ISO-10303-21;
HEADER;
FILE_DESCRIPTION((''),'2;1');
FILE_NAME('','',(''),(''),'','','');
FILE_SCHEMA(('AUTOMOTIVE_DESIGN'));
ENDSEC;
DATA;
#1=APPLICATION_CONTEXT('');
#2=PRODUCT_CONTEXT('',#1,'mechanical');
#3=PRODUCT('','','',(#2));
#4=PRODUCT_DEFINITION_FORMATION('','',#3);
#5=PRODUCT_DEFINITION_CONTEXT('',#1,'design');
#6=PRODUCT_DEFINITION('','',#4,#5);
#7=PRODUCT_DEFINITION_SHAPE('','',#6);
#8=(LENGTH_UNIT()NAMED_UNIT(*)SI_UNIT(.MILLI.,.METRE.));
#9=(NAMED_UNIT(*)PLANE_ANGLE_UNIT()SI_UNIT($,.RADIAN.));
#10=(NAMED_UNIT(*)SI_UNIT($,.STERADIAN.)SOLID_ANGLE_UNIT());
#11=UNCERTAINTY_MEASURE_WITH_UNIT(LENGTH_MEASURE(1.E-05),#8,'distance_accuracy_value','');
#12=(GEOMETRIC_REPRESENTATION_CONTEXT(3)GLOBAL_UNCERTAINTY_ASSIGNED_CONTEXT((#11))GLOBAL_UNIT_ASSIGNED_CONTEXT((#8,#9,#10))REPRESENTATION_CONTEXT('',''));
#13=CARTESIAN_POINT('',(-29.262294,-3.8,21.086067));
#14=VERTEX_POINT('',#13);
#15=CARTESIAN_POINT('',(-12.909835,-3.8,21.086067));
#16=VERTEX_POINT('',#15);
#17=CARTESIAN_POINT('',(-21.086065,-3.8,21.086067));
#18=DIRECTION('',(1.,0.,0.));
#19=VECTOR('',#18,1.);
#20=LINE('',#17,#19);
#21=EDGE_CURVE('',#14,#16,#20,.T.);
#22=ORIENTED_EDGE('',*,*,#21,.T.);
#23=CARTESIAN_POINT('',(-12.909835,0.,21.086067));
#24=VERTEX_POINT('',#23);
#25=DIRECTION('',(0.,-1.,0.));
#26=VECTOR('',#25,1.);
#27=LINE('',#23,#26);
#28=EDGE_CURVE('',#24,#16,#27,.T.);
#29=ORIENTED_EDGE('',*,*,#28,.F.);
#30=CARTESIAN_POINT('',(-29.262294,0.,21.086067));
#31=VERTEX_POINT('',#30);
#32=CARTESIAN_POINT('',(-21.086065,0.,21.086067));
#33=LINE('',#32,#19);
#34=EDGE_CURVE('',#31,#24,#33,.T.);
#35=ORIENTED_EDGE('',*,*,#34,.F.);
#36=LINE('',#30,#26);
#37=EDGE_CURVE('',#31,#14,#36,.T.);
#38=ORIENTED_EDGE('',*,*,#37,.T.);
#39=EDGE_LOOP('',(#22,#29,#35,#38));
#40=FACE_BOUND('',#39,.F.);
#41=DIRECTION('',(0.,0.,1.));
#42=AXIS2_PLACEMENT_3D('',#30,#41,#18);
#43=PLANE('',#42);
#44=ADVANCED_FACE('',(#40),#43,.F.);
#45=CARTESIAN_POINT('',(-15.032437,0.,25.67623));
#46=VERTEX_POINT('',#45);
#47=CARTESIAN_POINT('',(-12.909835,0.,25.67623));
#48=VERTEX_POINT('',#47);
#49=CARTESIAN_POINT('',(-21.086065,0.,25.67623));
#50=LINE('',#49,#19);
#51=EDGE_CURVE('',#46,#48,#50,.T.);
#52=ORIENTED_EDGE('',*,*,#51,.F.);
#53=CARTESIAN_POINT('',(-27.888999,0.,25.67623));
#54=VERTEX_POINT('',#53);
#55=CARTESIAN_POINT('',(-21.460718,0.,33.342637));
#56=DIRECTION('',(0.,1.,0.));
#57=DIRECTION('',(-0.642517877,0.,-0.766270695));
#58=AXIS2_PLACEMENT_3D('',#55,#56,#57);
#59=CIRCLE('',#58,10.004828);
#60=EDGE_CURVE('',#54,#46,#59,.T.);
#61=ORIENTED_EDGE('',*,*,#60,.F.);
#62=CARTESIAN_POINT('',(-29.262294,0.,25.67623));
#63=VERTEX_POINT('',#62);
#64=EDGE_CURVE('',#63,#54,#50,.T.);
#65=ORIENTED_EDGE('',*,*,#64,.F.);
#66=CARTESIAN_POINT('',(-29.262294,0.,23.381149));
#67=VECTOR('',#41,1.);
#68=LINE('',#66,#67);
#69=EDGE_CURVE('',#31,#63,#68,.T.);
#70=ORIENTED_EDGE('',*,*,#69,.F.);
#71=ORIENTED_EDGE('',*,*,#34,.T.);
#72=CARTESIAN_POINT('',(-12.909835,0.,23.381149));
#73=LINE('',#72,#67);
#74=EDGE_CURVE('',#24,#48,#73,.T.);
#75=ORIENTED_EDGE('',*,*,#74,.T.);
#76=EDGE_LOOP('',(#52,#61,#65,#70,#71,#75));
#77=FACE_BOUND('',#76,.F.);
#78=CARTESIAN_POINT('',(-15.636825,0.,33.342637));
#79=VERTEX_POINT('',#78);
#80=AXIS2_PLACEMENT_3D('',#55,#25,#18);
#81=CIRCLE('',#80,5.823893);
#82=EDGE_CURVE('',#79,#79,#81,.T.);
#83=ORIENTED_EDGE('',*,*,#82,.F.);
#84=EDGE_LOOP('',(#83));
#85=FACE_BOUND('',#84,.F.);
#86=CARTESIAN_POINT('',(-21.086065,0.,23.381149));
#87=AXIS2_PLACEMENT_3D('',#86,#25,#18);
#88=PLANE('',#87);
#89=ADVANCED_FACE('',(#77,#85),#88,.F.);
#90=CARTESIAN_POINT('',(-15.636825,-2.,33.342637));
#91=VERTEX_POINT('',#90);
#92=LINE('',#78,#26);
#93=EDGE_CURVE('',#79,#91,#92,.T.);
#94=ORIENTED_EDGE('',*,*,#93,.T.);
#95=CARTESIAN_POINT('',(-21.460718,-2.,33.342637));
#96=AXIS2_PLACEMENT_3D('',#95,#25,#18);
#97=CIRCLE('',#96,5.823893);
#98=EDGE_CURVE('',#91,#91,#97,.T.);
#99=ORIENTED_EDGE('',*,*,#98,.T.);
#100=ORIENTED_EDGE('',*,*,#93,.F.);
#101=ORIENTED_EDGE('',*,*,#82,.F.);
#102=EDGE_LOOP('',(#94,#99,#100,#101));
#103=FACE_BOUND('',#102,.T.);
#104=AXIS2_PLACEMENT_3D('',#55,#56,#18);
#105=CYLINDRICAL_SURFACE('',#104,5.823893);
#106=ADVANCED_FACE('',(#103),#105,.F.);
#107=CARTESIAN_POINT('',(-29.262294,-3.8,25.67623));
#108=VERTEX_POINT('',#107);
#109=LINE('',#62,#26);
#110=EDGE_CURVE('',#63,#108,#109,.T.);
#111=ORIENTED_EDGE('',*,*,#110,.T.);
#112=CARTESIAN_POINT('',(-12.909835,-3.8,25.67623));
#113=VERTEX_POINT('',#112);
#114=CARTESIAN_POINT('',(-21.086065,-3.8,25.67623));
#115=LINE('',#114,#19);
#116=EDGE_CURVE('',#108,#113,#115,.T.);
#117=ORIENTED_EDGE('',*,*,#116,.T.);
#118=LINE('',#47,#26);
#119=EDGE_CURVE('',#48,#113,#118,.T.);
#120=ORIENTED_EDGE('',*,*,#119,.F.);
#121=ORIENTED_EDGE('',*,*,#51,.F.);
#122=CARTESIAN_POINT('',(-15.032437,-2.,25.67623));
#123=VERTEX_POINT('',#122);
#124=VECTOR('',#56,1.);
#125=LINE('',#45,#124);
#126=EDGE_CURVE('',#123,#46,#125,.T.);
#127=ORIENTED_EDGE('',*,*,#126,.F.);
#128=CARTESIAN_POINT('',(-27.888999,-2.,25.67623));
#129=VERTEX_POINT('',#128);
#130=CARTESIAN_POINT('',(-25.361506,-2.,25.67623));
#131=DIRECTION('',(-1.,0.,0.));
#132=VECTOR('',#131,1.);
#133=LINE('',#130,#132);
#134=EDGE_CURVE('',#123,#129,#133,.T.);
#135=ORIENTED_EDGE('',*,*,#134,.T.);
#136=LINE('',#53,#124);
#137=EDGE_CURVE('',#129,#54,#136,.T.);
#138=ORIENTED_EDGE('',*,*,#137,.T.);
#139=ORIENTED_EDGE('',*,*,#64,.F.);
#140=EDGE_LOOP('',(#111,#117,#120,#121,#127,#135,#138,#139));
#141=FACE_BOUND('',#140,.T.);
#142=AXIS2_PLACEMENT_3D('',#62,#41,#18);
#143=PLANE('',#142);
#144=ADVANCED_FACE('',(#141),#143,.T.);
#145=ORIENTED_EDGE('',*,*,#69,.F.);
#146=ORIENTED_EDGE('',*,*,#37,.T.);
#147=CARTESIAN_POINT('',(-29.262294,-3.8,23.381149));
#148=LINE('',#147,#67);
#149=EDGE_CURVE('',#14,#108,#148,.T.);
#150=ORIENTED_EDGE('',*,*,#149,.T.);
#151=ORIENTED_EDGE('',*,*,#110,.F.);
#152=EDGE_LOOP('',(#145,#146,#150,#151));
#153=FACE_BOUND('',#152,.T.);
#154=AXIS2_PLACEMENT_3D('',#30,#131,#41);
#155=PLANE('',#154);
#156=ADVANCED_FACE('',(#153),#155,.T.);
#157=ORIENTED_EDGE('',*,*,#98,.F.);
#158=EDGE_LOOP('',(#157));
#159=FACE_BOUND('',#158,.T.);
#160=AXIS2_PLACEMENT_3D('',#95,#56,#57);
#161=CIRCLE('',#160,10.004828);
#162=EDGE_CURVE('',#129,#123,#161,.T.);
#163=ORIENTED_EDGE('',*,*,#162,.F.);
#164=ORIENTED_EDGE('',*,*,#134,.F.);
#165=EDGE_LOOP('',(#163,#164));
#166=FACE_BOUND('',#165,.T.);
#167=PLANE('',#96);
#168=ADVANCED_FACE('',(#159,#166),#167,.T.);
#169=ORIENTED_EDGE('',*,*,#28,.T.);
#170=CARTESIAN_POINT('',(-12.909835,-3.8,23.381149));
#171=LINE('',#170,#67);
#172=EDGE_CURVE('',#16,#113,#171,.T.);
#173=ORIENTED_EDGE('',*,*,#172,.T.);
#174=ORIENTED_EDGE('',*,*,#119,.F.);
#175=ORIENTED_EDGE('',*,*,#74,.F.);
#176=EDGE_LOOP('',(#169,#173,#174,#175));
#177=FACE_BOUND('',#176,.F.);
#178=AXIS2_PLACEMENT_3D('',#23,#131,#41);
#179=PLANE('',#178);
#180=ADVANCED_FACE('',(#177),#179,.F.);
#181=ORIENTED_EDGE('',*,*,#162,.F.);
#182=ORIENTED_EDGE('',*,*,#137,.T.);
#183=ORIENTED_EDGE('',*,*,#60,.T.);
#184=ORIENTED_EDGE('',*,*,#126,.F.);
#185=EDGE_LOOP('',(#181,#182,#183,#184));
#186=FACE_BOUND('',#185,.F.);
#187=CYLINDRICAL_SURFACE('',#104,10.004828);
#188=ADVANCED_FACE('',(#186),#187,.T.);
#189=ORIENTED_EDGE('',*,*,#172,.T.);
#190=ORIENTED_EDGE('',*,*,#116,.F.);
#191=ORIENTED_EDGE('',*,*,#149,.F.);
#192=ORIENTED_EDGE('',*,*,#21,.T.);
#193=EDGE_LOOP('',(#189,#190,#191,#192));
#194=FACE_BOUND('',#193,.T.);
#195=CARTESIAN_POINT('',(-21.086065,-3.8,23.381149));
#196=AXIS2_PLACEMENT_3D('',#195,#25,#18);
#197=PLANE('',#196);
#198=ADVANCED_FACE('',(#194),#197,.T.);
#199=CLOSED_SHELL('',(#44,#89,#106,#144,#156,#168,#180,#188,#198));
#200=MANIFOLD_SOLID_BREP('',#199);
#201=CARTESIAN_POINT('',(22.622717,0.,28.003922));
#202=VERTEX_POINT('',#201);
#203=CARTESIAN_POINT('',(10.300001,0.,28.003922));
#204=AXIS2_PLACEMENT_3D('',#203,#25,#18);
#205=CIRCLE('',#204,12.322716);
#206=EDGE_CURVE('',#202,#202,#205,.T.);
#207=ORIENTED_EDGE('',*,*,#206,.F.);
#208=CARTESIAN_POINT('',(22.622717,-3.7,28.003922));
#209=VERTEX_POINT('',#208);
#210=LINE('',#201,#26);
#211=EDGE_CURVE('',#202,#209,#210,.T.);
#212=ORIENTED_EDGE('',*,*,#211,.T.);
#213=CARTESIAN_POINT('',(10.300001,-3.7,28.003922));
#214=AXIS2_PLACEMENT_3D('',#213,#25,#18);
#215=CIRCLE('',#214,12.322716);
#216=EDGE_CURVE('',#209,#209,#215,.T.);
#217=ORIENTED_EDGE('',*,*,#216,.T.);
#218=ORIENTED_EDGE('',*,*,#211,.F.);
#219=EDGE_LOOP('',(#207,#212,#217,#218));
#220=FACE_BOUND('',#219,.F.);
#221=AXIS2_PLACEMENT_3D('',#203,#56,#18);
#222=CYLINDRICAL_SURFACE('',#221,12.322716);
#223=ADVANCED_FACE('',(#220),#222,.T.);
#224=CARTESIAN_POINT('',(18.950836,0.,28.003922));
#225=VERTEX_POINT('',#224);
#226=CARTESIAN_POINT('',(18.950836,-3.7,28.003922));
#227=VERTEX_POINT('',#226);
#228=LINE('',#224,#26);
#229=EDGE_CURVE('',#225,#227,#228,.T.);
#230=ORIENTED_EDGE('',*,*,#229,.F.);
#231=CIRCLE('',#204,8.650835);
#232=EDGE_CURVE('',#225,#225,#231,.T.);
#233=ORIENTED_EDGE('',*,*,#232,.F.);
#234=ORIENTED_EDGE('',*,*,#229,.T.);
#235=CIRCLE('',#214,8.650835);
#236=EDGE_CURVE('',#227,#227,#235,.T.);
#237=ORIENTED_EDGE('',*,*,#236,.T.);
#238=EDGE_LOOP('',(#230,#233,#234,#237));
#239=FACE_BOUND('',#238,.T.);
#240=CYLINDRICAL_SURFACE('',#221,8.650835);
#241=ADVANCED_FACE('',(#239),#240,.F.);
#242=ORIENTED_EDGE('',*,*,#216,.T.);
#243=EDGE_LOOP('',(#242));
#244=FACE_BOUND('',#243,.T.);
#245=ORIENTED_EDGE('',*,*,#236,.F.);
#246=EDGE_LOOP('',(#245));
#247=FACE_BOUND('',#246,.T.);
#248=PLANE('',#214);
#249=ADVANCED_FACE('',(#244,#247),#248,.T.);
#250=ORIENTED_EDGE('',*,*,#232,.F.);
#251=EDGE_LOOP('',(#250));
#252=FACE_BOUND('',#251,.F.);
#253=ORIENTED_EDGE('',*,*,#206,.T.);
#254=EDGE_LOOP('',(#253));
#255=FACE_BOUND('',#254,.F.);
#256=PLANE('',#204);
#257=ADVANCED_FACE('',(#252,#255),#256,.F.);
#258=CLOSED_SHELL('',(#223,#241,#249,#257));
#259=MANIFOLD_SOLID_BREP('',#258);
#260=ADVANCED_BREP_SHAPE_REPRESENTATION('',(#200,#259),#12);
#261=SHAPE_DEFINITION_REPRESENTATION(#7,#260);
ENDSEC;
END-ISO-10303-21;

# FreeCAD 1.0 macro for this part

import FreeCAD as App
import Part
import Sketcher

V = App.Vector

doc = App.newDocument("Part")
body = doc.addObject("PartDesign::Body", "Body")

sketch1 = doc.addObject("Sketcher::SketchObject", "Sketch")
body.addObject(sketch1)
sketch1.AttachmentSupport = (doc.XZ_Plane, [""])
sketch1.MapMode = "FlatFace"
sketch1.addGeometry([
    Part.Circle(V(-21.460718, 33.342637, 0), V(0, 0, 1), 10.004828),
    Part.Circle(V(-21.460718, 33.342637, 0), V(0, 0, 1), 5.823893),
], False)
sketch1.addConstraint([
    Sketcher.Constraint("Coincident", 1, 3, 0, 3),
    Sketcher.Constraint("Diameter", 0, 20.009656),
    Sketcher.Constraint("Diameter", 1, 11.647786),
    Sketcher.Constraint("DistanceX", 0, 3, -1, 1, 21.460718),
    Sketcher.Constraint("DistanceY", -1, 1, 0, 3, 33.342637),
])
pad1 = doc.addObject("PartDesign::Pad", "Pad")
body.addObject(pad1)
pad1.Profile = sketch1
pad1.Length = 2

sketch2 = doc.addObject("Sketcher::SketchObject", "Sketch001")
body.addObject(sketch2)
sketch2.AttachmentSupport = (doc.XZ_Plane, [""])
sketch2.MapMode = "FlatFace"
sketch2.addGeometry([
    Part.LineSegment(V(-29.262294, 25.67623, 0), V(-29.262294, 21.086067, 0)),
    Part.LineSegment(V(-29.262294, 21.086067, 0), V(-12.909835, 21.086067, 0)),
    Part.LineSegment(V(-12.909835, 21.086067, 0), V(-12.909835, 25.67623, 0)),
    Part.LineSegment(V(-12.909835, 25.67623, 0), V(-29.262294, 25.67623, 0)),
], False)
sketch2.addConstraint([
    Sketcher.Constraint("Coincident", 0, 2, 1, 1),
    Sketcher.Constraint("Coincident", 1, 2, 2, 1),
    Sketcher.Constraint("Coincident", 2, 2, 3, 1),
    Sketcher.Constraint("Coincident", 3, 2, 0, 1),
    Sketcher.Constraint("Vertical", 0),
    Sketcher.Constraint("Horizontal", 1),
    Sketcher.Constraint("Vertical", 2),
    Sketcher.Constraint("Horizontal", 3),
    Sketcher.Constraint("DistanceX", 1, 1, 1, 2, 16.352459),
    Sketcher.Constraint("DistanceY", 0, 2, 0, 1, 4.590163),
    Sketcher.Constraint("DistanceY", -1, 1, 2, 2, 25.67623),
    Sketcher.Constraint("DistanceX", 0, 2, -1, 1, 29.262294),
])
pad2 = doc.addObject("PartDesign::Pad", "Pad001")
body.addObject(pad2)
pad2.Profile = sketch2
pad2.Length = 3.8
body2 = doc.addObject("PartDesign::Body", "Body001")

sketch3 = doc.addObject("Sketcher::SketchObject", "Sketch002")
body2.addObject(sketch3)
sketch3.AttachmentSupport = (doc.getObject("XZ_Plane001"), [""])
sketch3.MapMode = "FlatFace"
sketch3.addGeometry([
    Part.Circle(V(10.300001, 28.003922, 0), V(0, 0, 1), 12.322716),
    Part.Circle(V(10.300001, 28.003922, 0), V(0, 0, 1), 8.650835),
], False)
sketch3.addConstraint([
    Sketcher.Constraint("Coincident", 1, 3, 0, 3),
    Sketcher.Constraint("DistanceX", -1, 1, 0, 3, 10.300001),
    Sketcher.Constraint("Diameter", 0, 24.645432),
    Sketcher.Constraint("Diameter", 1, 17.30167),
    Sketcher.Constraint("DistanceY", -1, 1, 0, 3, 28.003922),
])
pad3 = doc.addObject("PartDesign::Pad", "Pad002")
body2.addObject(pad3)
pad3.Profile = sketch3
pad3.Length = 3.7

doc.recompute()
